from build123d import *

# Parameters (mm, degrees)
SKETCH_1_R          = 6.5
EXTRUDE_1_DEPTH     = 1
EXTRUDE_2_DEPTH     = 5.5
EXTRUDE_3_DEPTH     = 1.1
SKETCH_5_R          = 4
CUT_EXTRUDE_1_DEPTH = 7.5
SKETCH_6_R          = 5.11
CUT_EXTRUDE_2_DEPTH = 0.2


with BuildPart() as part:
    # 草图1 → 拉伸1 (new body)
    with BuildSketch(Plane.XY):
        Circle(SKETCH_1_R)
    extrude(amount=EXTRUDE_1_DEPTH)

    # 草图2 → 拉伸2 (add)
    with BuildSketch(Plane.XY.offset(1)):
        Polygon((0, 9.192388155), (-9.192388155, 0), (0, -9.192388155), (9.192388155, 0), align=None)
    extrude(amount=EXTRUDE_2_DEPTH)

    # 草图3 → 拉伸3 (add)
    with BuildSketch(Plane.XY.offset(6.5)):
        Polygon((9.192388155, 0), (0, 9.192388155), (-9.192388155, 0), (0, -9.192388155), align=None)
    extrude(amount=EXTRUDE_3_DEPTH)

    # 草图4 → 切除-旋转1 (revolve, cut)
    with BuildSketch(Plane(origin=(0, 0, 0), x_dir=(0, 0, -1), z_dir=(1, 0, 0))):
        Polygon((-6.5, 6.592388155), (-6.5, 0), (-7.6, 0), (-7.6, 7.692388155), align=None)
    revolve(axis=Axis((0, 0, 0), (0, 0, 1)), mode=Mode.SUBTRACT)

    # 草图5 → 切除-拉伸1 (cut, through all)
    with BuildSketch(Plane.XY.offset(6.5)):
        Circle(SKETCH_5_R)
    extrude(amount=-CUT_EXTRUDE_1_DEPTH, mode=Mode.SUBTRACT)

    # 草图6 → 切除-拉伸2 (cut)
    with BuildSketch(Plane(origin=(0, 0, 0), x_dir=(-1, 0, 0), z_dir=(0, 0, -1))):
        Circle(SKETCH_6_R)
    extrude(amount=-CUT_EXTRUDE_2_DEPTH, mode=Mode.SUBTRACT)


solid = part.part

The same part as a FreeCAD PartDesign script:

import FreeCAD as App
import Part
import Sketcher

V = App.Vector
Q = App.Units.Quantity


def add_polygon(sketch, points):
    """Adds a closed chain of lines whose ends are joined by coincident constraints."""
    first, n = sketch.GeometryCount, len(points)
    for a, b in zip(points, points[1:] + points[:1]):
        sketch.addGeometry(Part.LineSegment(App.Vector(*a, 0), App.Vector(*b, 0)), False)
    for i in range(n):
        sketch.addConstraint(Sketcher.Constraint("Coincident", first + i, 2, first + (i + 1) % n, 1))

doc = App.newDocument("Part")
body = doc.addObject("PartDesign::Body", "Body")

# Sketch on XY plane
sketch1 = doc.addObject("Sketcher::SketchObject", "Sketch")
body.addObject(sketch1)
sketch1.AttachmentSupport = (doc.XY_Plane, [""])
sketch1.MapMode = "FlatFace"
sketch1.addGeometry(Part.Circle(V(0, 0, 0), V(0, 0, 1), 6), False)
sketch1.addConstraint([
    Sketcher.Constraint("Coincident", 0, 3, -1, 1),
    Sketcher.Constraint("Diameter", 0, Q("13 mm")),
])
pad1 = doc.addObject("PartDesign::Pad", "Pad")
body.addObject(pad1)
pad1.Profile = sketch1
pad1.Length = 1

# Sketch on XY plane
sketch2 = doc.addObject("Sketcher::SketchObject", "Sketch001")
body.addObject(sketch2)
sketch2.AttachmentSupport = (doc.XY_Plane, [""])
sketch2.MapMode = "FlatFace"
sketch2.AttachmentOffset = App.Placement(V(0, 0, 1), App.Rotation())
add_polygon(sketch2, [(0, 9), (-9, 0), (0, -9), (9, 0)])  # lines 0-3
sketch2.addConstraint([
    Sketcher.Constraint("Symmetric", 0, 2, 2, 2, -1, 1),
    Sketcher.Constraint("Symmetric", 1, 2, 3, 2, -1, 1),
    Sketcher.Constraint("PointOnObject", 0, 2, -1),
    Sketcher.Constraint("PointOnObject", 1, 2, -2),
    Sketcher.Constraint("Perpendicular", 0, 1),
    Sketcher.Constraint("Distance", 0, Q("13 mm")),
])
pad2 = doc.addObject("PartDesign::Pad", "Pad001")
body.addObject(pad2)
pad2.Profile = sketch2
pad2.Length = 5.5

# Sketch on XY plane
sketch3 = doc.addObject("Sketcher::SketchObject", "Sketch002")
body.addObject(sketch3)
sketch3.AttachmentSupport = (doc.XY_Plane, [""])
sketch3.MapMode = "FlatFace"
sketch3.AttachmentOffset = App.Placement(V(0, 0, 6.5), App.Rotation())
add_polygon(sketch3, [(9, 0), (0, 9), (-9, 0), (0, -9)])  # lines 0-3
sketch3.addConstraint([
    Sketcher.Constraint("Symmetric", 0, 2, 2, 2, -1, 1),
    Sketcher.Constraint("Symmetric", 1, 2, 3, 2, -1, 1),
    Sketcher.Constraint("PointOnObject", 0, 2, -2),
    Sketcher.Constraint("PointOnObject", 1, 2, -1),
    Sketcher.Constraint("Perpendicular", 0, 1),
    Sketcher.Constraint("Distance", 0, Q("13 mm")),
])
pad3 = doc.addObject("PartDesign::Pad", "Pad002")
body.addObject(pad3)
pad3.Profile = sketch3
pad3.Length = 1.1

# Sketch on YZ plane
sketch4 = doc.addObject("Sketcher::SketchObject", "Sketch003")
body.addObject(sketch4)
sketch4.AttachmentSupport = (doc.YZ_Plane, [""])
sketch4.MapMode = "FlatFace"
add_polygon(sketch4, [(0, 6.5), (6.6, 6.5), (7.7, 7.6), (0, 7.6)])  # lines 0-3
sketch4.addConstraint([
    Sketcher.Constraint("Horizontal", 0),
    Sketcher.Constraint("Horizontal", 2),
    Sketcher.Constraint("Vertical", 3),
    Sketcher.Constraint("PointOnObject", 2, 2, -2),
    Sketcher.Constraint("Angle", 1, Q("45 deg")),
    Sketcher.Constraint("DistanceY", 3, 2, 3, 1, Q("1.1 mm")),
    Sketcher.Constraint("DistanceY", -1, 1, 0, 2, Q("6.5 mm")),
    Sketcher.Constraint("DistanceX", 0, 1, 0, 2, Q("6.592388 mm")),
])
groove = doc.addObject("PartDesign::Groove", "Groove")
body.addObject(groove)
groove.Profile = sketch4
groove.ReferenceAxis = (sketch4, ["V_Axis"])
groove.Angle = 360

# Sketch on XY plane
sketch5 = doc.addObject("Sketcher::SketchObject", "Sketch004")
body.addObject(sketch5)
sketch5.AttachmentSupport = (doc.XY_Plane, [""])
sketch5.MapMode = "FlatFace"
sketch5.AttachmentOffset = App.Placement(V(0, 0, 6.5), App.Rotation())
sketch5.addGeometry(Part.Circle(V(0, 0, 0), V(0, 0, 1), 4), False)
sketch5.addConstraint([
    Sketcher.Constraint("Coincident", 0, 3, -1, 1),
    Sketcher.Constraint("Diameter", 0, Q("8 mm")),
])
pocket1 = doc.addObject("PartDesign::Pocket", "Pocket")
body.addObject(pocket1)
pocket1.Profile = sketch5
pocket1.Type = "ThroughAll"

# Sketch on XY plane
sketch6 = doc.addObject("Sketcher::SketchObject", "Sketch005")
body.addObject(sketch6)
sketch6.AttachmentSupport = (doc.XY_Plane, [""])
sketch6.MapMode = "FlatFace"
sketch6.addGeometry(Part.Circle(V(0, 0, 0), V(0, 0, 1), 5), False)
sketch6.addConstraint([
    Sketcher.Constraint("Coincident", 0, 3, -1, 1),
    Sketcher.Constraint("Diameter", 0, Q("10.22 mm")),
])
pocket2 = doc.addObject("PartDesign::Pocket", "Pocket001")
body.addObject(pocket2)
pocket2.Profile = sketch6
pocket2.Length = 0.2
pocket2.Reversed = True

doc.recompute()
